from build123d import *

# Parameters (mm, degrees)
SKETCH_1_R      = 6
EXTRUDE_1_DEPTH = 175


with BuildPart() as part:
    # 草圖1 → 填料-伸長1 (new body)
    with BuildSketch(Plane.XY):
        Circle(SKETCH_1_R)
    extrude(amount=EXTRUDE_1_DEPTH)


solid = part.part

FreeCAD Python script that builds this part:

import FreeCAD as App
import Part
import Sketcher

doc = App.newDocument("Part")
body = doc.addObject("PartDesign::Body", "Body")

# Sketch on XY plane
sketch1 = body.newObject("Sketcher::SketchObject", "Sketch")
sketch1.AttachmentSupport = (doc.getObject("XY_Plane"), [""])
sketch1.MapMode = "FlatFace"
sketch1.addGeometry(Part.Circle(App.Vector(0, 0, 0), App.Vector(0, 0, 1), 6), False)
sketch1.addConstraint([
    Sketcher.Constraint("Coincident", 0, 3, -1, 1),
    Sketcher.Constraint("Diameter", 0, 12.0),
])
pad1 = body.newObject("PartDesign::Pad", "Pad")
pad1.Profile = sketch1
pad1.Length = 175

doc.recompute()
